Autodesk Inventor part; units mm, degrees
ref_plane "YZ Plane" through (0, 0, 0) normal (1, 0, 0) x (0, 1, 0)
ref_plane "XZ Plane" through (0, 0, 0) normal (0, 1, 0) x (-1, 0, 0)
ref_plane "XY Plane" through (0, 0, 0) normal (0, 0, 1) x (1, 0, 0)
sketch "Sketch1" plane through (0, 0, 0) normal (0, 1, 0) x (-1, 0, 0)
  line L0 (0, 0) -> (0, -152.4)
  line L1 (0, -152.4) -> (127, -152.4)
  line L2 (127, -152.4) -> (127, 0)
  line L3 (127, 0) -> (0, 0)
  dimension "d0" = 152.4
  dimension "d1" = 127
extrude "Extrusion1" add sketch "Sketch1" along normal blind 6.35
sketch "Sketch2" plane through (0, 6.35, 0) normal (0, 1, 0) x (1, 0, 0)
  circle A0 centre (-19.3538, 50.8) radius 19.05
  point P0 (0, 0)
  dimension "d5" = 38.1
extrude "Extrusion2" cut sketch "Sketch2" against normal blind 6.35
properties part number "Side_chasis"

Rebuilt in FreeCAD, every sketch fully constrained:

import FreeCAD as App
import Part
import Sketcher

V = App.Vector
Q = App.Units.Quantity


def add_polygon(sketch, points):
    """Adds a closed chain of lines whose ends are joined by coincident constraints."""
    first, n = sketch.GeometryCount, len(points)
    for a, b in zip(points, points[1:] + points[:1]):
        sketch.addGeometry(Part.LineSegment(App.Vector(*a, 0), App.Vector(*b, 0)), False)
    for i in range(n):
        sketch.addConstraint(Sketcher.Constraint("Coincident", first + i, 2, first + (i + 1) % n, 1))

doc = App.newDocument("Part")
body = doc.addObject("PartDesign::Body", "Body")

# Sketch on XZ plane
sketch1 = doc.addObject("Sketcher::SketchObject", "Sketch")
body.addObject(sketch1)
sketch1.AttachmentSupport = (doc.XZ_Plane, [""])
sketch1.MapMode = "FlatFace"
add_polygon(sketch1, [(-127, 0), (0, 0), (0, -152), (-127, -152)])  # lines 0-3
sketch1.addConstraint(Sketcher.Constraint("Horizontal", 0))
sketch1.addConstraint(Sketcher.Constraint("Vertical", 1))
sketch1.addConstraint(Sketcher.Constraint("Horizontal", 2))
sketch1.addConstraint(Sketcher.Constraint("Vertical", 3))
sketch1.addConstraint(Sketcher.Constraint("Coincident", 0, 2, -1, 1))
sketch1.addConstraint(Sketcher.Constraint("DistanceX", 0, 1, 0, 2, Q("5 in")))
sketch1.addConstraint(Sketcher.Constraint("DistanceY", 1, 2, 1, 1, Q("6 in")))
pad1 = doc.addObject("PartDesign::Pad", "Pad")
body.addObject(pad1)
pad1.Profile = sketch1
pad1.Length = Q("0.25 in")
pad1.Reversed = True

# Sketch on XZ plane
sketch2 = doc.addObject("Sketcher::SketchObject", "Sketch001")
body.addObject(sketch2)
sketch2.AttachmentSupport = (doc.XZ_Plane, [""])
sketch2.MapMode = "FlatFace"
sketch2.AttachmentOffset = App.Placement(V(0, 0, -0.25 * 25.4), App.Rotation())
sketch2.addGeometry(Part.Circle(V(-19, -51, 0), V(0, 0, 1), 19), False)
sketch2.addConstraint(Sketcher.Constraint("Diameter", 0, Q("1.5 in")))
sketch2.addConstraint(Sketcher.Constraint("DistanceY", 0, 3, -1, 1, Q("2 in")))
sketch2.addConstraint(Sketcher.Constraint("DistanceX", 0, 3, -1, 1, 19.3538))
pocket1 = doc.addObject("PartDesign::Pocket", "Pocket")
body.addObject(pocket1)
pocket1.Profile = sketch2
pocket1.Length = Q("0.25 in")
pocket1.Reversed = True

doc.recompute()
